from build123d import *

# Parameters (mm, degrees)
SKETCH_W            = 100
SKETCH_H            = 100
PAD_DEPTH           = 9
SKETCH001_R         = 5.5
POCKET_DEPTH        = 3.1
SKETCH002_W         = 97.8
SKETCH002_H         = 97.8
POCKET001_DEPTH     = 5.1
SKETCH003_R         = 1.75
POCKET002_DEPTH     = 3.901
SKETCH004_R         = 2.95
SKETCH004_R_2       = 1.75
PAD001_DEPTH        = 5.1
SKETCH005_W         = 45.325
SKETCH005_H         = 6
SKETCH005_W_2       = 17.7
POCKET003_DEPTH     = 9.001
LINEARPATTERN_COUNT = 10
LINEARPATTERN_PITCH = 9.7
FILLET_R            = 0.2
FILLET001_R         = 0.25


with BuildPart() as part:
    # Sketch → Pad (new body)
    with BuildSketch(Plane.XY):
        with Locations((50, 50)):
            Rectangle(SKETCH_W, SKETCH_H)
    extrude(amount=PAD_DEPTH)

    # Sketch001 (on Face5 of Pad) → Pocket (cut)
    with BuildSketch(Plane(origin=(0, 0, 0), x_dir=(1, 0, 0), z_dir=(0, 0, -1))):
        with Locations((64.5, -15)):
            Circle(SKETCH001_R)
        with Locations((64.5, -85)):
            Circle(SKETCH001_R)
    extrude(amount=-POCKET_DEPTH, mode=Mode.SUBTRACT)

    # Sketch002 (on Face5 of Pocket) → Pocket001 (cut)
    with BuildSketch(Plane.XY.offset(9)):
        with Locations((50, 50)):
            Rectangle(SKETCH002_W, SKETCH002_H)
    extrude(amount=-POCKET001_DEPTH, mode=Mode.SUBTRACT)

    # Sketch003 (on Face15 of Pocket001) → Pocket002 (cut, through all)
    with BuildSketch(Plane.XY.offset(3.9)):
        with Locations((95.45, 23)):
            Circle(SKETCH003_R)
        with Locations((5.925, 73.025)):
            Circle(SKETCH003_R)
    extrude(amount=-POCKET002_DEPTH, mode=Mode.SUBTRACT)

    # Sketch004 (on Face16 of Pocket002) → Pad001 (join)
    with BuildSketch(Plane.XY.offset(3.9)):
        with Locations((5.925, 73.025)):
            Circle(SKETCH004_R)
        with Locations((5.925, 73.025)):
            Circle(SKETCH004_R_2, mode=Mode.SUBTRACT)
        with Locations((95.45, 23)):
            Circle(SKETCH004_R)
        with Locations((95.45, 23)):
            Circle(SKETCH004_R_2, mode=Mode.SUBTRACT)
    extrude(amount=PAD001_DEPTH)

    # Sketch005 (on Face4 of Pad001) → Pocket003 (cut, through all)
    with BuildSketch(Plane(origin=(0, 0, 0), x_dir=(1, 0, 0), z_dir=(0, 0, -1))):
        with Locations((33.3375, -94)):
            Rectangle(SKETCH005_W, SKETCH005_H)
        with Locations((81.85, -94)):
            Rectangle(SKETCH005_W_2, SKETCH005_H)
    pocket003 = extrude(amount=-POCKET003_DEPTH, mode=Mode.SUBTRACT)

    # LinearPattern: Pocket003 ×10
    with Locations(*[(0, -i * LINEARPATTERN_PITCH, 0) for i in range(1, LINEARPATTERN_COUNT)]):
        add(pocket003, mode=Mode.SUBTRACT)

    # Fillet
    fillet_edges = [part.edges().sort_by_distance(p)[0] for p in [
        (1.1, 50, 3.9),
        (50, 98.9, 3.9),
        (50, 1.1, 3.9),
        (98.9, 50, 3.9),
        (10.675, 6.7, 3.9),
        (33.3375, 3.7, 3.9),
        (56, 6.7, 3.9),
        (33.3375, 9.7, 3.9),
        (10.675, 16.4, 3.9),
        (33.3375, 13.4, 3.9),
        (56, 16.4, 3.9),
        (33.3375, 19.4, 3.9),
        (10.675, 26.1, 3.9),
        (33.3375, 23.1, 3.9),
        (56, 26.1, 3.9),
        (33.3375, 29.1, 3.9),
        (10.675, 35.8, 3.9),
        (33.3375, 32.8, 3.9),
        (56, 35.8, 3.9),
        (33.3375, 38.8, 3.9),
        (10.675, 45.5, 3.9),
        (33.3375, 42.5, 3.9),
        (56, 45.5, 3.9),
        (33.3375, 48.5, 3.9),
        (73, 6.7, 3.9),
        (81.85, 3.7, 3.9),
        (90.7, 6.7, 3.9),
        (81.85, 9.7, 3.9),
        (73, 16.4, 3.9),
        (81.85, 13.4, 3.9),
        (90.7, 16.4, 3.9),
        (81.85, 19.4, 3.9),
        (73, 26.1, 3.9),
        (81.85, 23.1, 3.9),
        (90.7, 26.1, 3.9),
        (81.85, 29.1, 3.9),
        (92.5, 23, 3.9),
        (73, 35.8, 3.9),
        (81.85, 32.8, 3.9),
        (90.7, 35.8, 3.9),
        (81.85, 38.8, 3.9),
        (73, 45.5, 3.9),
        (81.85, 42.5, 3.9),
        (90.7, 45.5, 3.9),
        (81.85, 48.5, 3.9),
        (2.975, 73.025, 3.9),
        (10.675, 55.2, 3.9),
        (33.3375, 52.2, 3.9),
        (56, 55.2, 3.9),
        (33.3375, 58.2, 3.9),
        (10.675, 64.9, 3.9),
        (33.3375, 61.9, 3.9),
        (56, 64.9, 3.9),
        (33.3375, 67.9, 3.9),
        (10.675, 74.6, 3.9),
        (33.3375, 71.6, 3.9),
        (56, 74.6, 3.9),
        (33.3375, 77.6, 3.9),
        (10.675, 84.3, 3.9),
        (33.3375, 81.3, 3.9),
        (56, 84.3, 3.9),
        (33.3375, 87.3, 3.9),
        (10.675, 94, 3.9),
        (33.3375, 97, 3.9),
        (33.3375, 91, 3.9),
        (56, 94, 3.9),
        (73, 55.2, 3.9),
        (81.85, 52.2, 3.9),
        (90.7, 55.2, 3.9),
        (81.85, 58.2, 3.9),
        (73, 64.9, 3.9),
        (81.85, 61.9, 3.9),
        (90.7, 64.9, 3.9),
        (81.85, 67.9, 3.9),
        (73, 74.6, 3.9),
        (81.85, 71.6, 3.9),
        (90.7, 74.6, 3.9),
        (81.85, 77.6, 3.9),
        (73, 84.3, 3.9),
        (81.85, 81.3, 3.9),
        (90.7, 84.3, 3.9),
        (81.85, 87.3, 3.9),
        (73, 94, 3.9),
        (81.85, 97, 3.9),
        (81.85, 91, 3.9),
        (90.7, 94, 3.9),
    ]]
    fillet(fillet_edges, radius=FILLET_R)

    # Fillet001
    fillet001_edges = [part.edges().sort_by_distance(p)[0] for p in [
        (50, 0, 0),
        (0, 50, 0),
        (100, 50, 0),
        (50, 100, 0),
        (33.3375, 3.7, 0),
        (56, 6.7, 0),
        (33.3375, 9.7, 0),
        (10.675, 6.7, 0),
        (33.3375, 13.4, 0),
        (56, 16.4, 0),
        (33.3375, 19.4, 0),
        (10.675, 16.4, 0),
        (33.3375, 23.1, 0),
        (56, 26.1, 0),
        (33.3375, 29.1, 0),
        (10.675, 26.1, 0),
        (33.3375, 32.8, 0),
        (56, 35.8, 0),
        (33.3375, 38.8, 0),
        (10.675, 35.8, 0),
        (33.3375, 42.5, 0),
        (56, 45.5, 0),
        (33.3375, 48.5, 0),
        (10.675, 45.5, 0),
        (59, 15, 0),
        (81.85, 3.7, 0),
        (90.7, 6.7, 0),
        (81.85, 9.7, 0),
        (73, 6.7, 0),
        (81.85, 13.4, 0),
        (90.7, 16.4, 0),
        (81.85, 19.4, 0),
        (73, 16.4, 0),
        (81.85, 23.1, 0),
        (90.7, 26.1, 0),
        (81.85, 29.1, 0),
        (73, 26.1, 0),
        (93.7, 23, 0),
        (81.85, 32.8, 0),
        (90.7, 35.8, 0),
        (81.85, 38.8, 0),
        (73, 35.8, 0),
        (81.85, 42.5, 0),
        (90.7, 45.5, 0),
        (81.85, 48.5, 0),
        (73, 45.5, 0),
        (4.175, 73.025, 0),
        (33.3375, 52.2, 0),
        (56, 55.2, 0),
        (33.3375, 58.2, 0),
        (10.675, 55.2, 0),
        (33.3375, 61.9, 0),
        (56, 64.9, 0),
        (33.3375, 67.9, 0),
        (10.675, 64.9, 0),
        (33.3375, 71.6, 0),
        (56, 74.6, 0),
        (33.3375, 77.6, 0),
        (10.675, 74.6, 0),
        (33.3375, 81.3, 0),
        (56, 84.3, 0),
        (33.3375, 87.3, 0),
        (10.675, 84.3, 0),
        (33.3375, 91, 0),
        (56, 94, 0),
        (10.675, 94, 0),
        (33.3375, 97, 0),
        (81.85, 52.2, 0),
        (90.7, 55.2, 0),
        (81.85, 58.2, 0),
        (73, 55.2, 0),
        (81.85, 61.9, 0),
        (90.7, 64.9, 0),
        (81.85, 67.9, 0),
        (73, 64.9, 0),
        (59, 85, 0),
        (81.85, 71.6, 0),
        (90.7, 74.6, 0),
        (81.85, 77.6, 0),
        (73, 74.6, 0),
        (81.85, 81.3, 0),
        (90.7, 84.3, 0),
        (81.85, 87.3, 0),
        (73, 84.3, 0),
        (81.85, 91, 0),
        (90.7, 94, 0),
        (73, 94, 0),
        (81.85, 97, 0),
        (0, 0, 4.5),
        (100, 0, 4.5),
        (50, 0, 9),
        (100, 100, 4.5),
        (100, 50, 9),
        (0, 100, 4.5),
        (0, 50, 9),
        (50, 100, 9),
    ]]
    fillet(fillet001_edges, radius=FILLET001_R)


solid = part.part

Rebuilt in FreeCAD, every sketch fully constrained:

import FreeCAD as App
import Part
import Sketcher
from FreeCAD import Vector


def edges_at(feature, points):
    """Names of the edges that pass closest to the given points."""
    edges = feature.Shape.Edges
    near = lambda p: min(range(len(edges)), key=lambda i: edges[i].distToShape(Part.Vertex(*p))[0])
    return sorted({f"Edge{near(p) + 1}" for p in points})


def add_polygon(sketch, points):
    """Adds a closed chain of lines whose ends are joined by coincident constraints."""
    first, n = sketch.GeometryCount, len(points)
    for a, b in zip(points, points[1:] + points[:1]):
        sketch.addGeometry(Part.LineSegment(App.Vector(*a, 0), App.Vector(*b, 0)), False)
    for i in range(n):
        sketch.addConstraint(Sketcher.Constraint("Coincident", first + i, 2, first + (i + 1) % n, 1))

doc = App.newDocument("Part")
body = doc.addObject("PartDesign::Body", "Body")

sketch1 = doc.addObject("Sketcher::SketchObject", "Sketch")
body.addObject(sketch1)
sketch1.AttachmentSupport = (doc.XY_Plane, [""])
sketch1.MapMode = "FlatFace"
add_polygon(sketch1, [(0, 100), (0, 0), (100, 0), (100, 100)])
sketch1.addConstraint(Sketcher.Constraint("Vertical", 0))
sketch1.addConstraint(Sketcher.Constraint("Horizontal", 1))
sketch1.addConstraint(Sketcher.Constraint("Vertical", 2))
sketch1.addConstraint(Sketcher.Constraint("Horizontal", 3))
sketch1.addConstraint(Sketcher.Constraint("Coincident", 0, 2, -1, 1))
sketch1.addConstraint(Sketcher.Constraint("Equal", 3, 0))
sketch1.addConstraint(Sketcher.Constraint("DistanceX", 1, 1, 1, 2, 100.0))
pad1 = doc.addObject("PartDesign::Pad", "Pad")
body.addObject(pad1)
pad1.Profile = sketch1
pad1.Length = 9

sketch2 = doc.addObject("Sketcher::SketchObject", "Sketch001")
body.addObject(sketch2)
sketch2.AttachmentSupport = (doc.XY_Plane, [""])
sketch2.MapMode = "FlatFace"
sketch2.addGeometry(Part.Circle(Vector(64, 15, 0), Vector(0, 0, 1), 6), False)
sketch2.addGeometry(Part.Circle(Vector(64, 85, 0), Vector(0, 0, 1), 6), False)
sketch2.addConstraint(Sketcher.Constraint("Equal", 0, 1))
sketch2.addConstraint(Sketcher.Constraint("Vertical", 0, 3, 1, 3))
sketch2.addConstraint(Sketcher.Constraint("Diameter", 0, 11.0))
sketch2.addConstraint(Sketcher.Constraint("DistanceY", -1, 1, 0, 3, 15.0))
sketch2.addConstraint(Sketcher.Constraint("DistanceY", -1, 1, 1, 3, 85.0))
sketch2.addConstraint(Sketcher.Constraint("DistanceX", -1, 1, 0, 3, 64.5))
pocket1 = doc.addObject("PartDesign::Pocket", "Pocket")
body.addObject(pocket1)
pocket1.Profile = sketch2
pocket1.Length = 3.1
pocket1.Reversed = True

sketch3 = doc.addObject("Sketcher::SketchObject", "Sketch002")
body.addObject(sketch3)
sketch3.AttachmentSupport = (doc.XY_Plane, [""])
sketch3.MapMode = "FlatFace"
sketch3.AttachmentOffset = App.Placement(Vector(0, 0, 9), App.Rotation())
add_polygon(sketch3, [(1, 99), (1, 1), (99, 1), (99, 99)])
sketch3.addConstraint(Sketcher.Constraint("Vertical", 0))
sketch3.addConstraint(Sketcher.Constraint("Horizontal", 1))
sketch3.addConstraint(Sketcher.Constraint("Vertical", 2))
sketch3.addConstraint(Sketcher.Constraint("Horizontal", 3))
sketch3.addConstraint(Sketcher.Constraint("Equal", 3, 0))
sketch3.addConstraint(Sketcher.Constraint("DistanceX", 1, 1, 1, 2, 97.8))
sketch3.addConstraint(Sketcher.Constraint("DistanceX", -1, 1, 0, 2, 1.1))
sketch3.addConstraint(Sketcher.Constraint("DistanceY", -1, 1, 0, 2, 1.1))
pocket2 = doc.addObject("PartDesign::Pocket", "Pocket001")
body.addObject(pocket2)
pocket2.Profile = sketch3
pocket2.Length = 5.1

sketch4 = doc.addObject("Sketcher::SketchObject", "Sketch003")
body.addObject(sketch4)
sketch4.AttachmentSupport = (doc.XY_Plane, [""])
sketch4.MapMode = "FlatFace"
sketch4.AttachmentOffset = App.Placement(Vector(0, 0, 3.9), App.Rotation())
sketch4.addGeometry(Part.Circle(Vector(95.5, 23, 0), Vector(0, 0, 1), 1.8), False)
sketch4.addGeometry(Part.Circle(Vector(5.9, 73, 0), Vector(0, 0, 1), 1.8), False)
sketch4.addConstraint(Sketcher.Constraint("Equal", 0, 1))
sketch4.addConstraint(Sketcher.Constraint("Diameter", 0, 3.5))
sketch4.addConstraint(Sketcher.Constraint("DistanceY", -1, 1, 0, 3, 23.0))
sketch4.addConstraint(Sketcher.Constraint("DistanceX", -1, 1, 0, 3, 95.45))
sketch4.addConstraint(Sketcher.Constraint("DistanceX", -1, 1, 1, 3, 5.925))
sketch4.addConstraint(Sketcher.Constraint("DistanceY", -1, 1, 1, 3, 73.025))
pocket3 = doc.addObject("PartDesign::Pocket", "Pocket002")
body.addObject(pocket3)
pocket3.Profile = sketch4
pocket3.Type = "ThroughAll"

sketch5 = doc.addObject("Sketcher::SketchObject", "Sketch004")
body.addObject(sketch5)
sketch5.AttachmentSupport = (doc.XY_Plane, [""])
sketch5.MapMode = "FlatFace"
sketch5.AttachmentOffset = App.Placement(Vector(0, 0, 3.9), App.Rotation())
sketch5.addGeometry(Part.Circle(Vector(5.9, 73, 0), Vector(0, 0, 1), 3), False)
sketch5.addGeometry(Part.Circle(Vector(5.9, 73, 0), Vector(0, 0, 1), 1.8), False)
sketch5.addGeometry(Part.Circle(Vector(95.5, 23, 0), Vector(0, 0, 1), 3), False)
sketch5.addGeometry(Part.Circle(Vector(95.5, 23, 0), Vector(0, 0, 1), 1.8), False)
sketch5.addConstraint(Sketcher.Constraint("Coincident", 1, 3, 0, 3))
sketch5.addConstraint(Sketcher.Constraint("Coincident", 3, 3, 2, 3))
sketch5.addConstraint(Sketcher.Constraint("Equal", 0, 2))
sketch5.addConstraint(Sketcher.Constraint("Equal", 1, 3))
sketch5.addConstraint(Sketcher.Constraint("Diameter", 0, 5.9))
sketch5.addConstraint(Sketcher.Constraint("Diameter", 1, 3.5))
sketch5.addConstraint(Sketcher.Constraint("DistanceY", -1, 1, 2, 3, 23.0))
sketch5.addConstraint(Sketcher.Constraint("DistanceX", -1, 1, 2, 3, 95.45))
sketch5.addConstraint(Sketcher.Constraint("DistanceX", -1, 1, 0, 3, 5.925))
sketch5.addConstraint(Sketcher.Constraint("DistanceY", -1, 1, 0, 3, 73.025))
pad2 = doc.addObject("PartDesign::Pad", "Pad001")
body.addObject(pad2)
pad2.Profile = sketch5
pad2.Length = 5.1

sketch6 = doc.addObject("Sketcher::SketchObject", "Sketch005")
body.addObject(sketch6)
sketch6.AttachmentSupport = (doc.XY_Plane, [""])
sketch6.MapMode = "FlatFace"
add_polygon(sketch6, [(11, 91), (11, 97), (56, 97), (56, 91)])
add_polygon(sketch6, [(73, 91), (73, 97), (91, 97), (91, 91)])
sketch6.addConstraint(Sketcher.Constraint("Vertical", 0))
sketch6.addConstraint(Sketcher.Constraint("Horizontal", 1))
sketch6.addConstraint(Sketcher.Constraint("Vertical", 2))
sketch6.addConstraint(Sketcher.Constraint("Horizontal", 3))
sketch6.addConstraint(Sketcher.Constraint("Vertical", 4))
sketch6.addConstraint(Sketcher.Constraint("Horizontal", 5))
sketch6.addConstraint(Sketcher.Constraint("Vertical", 6))
sketch6.addConstraint(Sketcher.Constraint("Horizontal", 7))
sketch6.addConstraint(Sketcher.Constraint("Horizontal", 1, 2, 4, 2))
sketch6.addConstraint(Sketcher.Constraint("Horizontal", 3, 2, 6, 2))
sketch6.addConstraint(Sketcher.Constraint("DistanceY", 0, 1, 0, 2, 6.0))
sketch6.addConstraint(Sketcher.Constraint("DistanceX", 5, 1, 5, 2, 17.7))
sketch6.addConstraint(Sketcher.Constraint("DistanceY", -1, 1, 0, 2, 97.0))
sketch6.addConstraint(Sketcher.Constraint("DistanceX", -1, 1, 1, 2, 56.0))
sketch6.addConstraint(Sketcher.Constraint("DistanceX", -1, 1, 4, 2, 73.0))
sketch6.addConstraint(Sketcher.Constraint("DistanceX", 1, 1, 1, 2, 45.325))
pocket4 = doc.addObject("PartDesign::Pocket", "Pocket003")
body.addObject(pocket4)
pocket4.Profile = sketch6
pocket4.Type = "ThroughAll"
pocket4.Reversed = True
doc.recompute()

linearpattern = doc.addObject("PartDesign::LinearPattern", "LinearPattern")
body.addObject(linearpattern)
linearpattern.Originals = [pocket4]
linearpattern.Direction = (doc.Y_Axis, [""])
linearpattern.Mode = "offset"
linearpattern.Offset = 9.7
linearpattern.Occurrences = 10
linearpattern.Reversed = True
body.Tip = linearpattern
doc.recompute()

fillet = doc.addObject("PartDesign::Fillet", "Fillet")
body.addObject(fillet)
fillet.Base = (linearpattern, edges_at(linearpattern, [
    (1.1, 50, 3.9),
    (50, 98.9, 3.9),
    (50, 1.1, 3.9),
    (98.9, 50, 3.9),
    (10.675, 6.7, 3.9),
    (33.337, 3.7, 3.9),
    (56, 6.7, 3.9),
    (33.337, 9.7, 3.9),
    (10.675, 16.4, 3.9),
    (33.337, 13.4, 3.9),
    (56, 16.4, 3.9),
    (33.337, 19.4, 3.9),
    (10.675, 26.1, 3.9),
    (33.337, 23.1, 3.9),
    (56, 26.1, 3.9),
    (33.337, 29.1, 3.9),
    (10.675, 35.8, 3.9),
    (33.337, 32.8, 3.9),
    (56, 35.8, 3.9),
    (33.337, 38.8, 3.9),
    (10.675, 45.5, 3.9),
    (33.337, 42.5, 3.9),
    (56, 45.5, 3.9),
    (33.337, 48.5, 3.9),
    (73, 6.7, 3.9),
    (81.85, 3.7, 3.9),
    (90.7, 6.7, 3.9),
    (81.85, 9.7, 3.9),
    (73, 16.4, 3.9),
    (81.85, 13.4, 3.9),
    (90.7, 16.4, 3.9),
    (81.85, 19.4, 3.9),
    (73, 26.1, 3.9),
    (81.85, 23.1, 3.9),
    (90.7, 26.1, 3.9),
    (81.85, 29.1, 3.9),
    (92.5, 23, 3.9),
    (73, 35.8, 3.9),
    (81.85, 32.8, 3.9),
    (90.7, 35.8, 3.9),
    (81.85, 38.8, 3.9),
    (73, 45.5, 3.9),
    (81.85, 42.5, 3.9),
    (90.7, 45.5, 3.9),
    (81.85, 48.5, 3.9),
    (2.975, 73.025, 3.9),
    (10.675, 55.2, 3.9),
    (33.337, 52.2, 3.9),
    (56, 55.2, 3.9),
    (33.337, 58.2, 3.9),
    (10.675, 64.9, 3.9),
    (33.337, 61.9, 3.9),
    (56, 64.9, 3.9),
    (33.337, 67.9, 3.9),
    (10.675, 74.6, 3.9),
    (33.337, 71.6, 3.9),
    (56, 74.6, 3.9),
    (33.337, 77.6, 3.9),
    (10.675, 84.3, 3.9),
    (33.337, 81.3, 3.9),
    (56, 84.3, 3.9),
    (33.337, 87.3, 3.9),
    (10.675, 94, 3.9),
    (33.337, 97, 3.9),
    (33.337, 91, 3.9),
    (56, 94, 3.9),
    (73, 55.2, 3.9),
    (81.85, 52.2, 3.9),
    (90.7, 55.2, 3.9),
    (81.85, 58.2, 3.9),
    (73, 64.9, 3.9),
    (81.85, 61.9, 3.9),
    (90.7, 64.9, 3.9),
    (81.85, 67.9, 3.9),
    (73, 74.6, 3.9),
    (81.85, 71.6, 3.9),
    (90.7, 74.6, 3.9),
    (81.85, 77.6, 3.9),
    (73, 84.3, 3.9),
    (81.85, 81.3, 3.9),
    (90.7, 84.3, 3.9),
    (81.85, 87.3, 3.9),
    (73, 94, 3.9),
    (81.85, 97, 3.9),
    (81.85, 91, 3.9),
    (90.7, 94, 3.9),
]))
fillet.Radius = 0.2
doc.recompute()

fillet2 = doc.addObject("PartDesign::Fillet", "Fillet001")
body.addObject(fillet2)
fillet2.Base = (fillet, edges_at(fillet, [
    (50, 0, 0),
    (0, 50, 0),
    (100, 50, 0),
    (50, 100, 0),
    (33.337, 3.7, 0),
    (56, 6.7, 0),
    (33.337, 9.7, 0),
    (10.675, 6.7, 0),
    (33.337, 13.4, 0),
    (56, 16.4, 0),
    (33.337, 19.4, 0),
    (10.675, 16.4, 0),
    (33.337, 23.1, 0),
    (56, 26.1, 0),
    (33.337, 29.1, 0),
    (10.675, 26.1, 0),
    (33.337, 32.8, 0),
    (56, 35.8, 0),
    (33.337, 38.8, 0),
    (10.675, 35.8, 0),
    (33.337, 42.5, 0),
    (56, 45.5, 0),
    (33.337, 48.5, 0),
    (10.675, 45.5, 0),
    (59, 15, 0),
    (81.85, 3.7, 0),
    (90.7, 6.7, 0),
    (81.85, 9.7, 0),
    (73, 6.7, 0),
    (81.85, 13.4, 0),
    (90.7, 16.4, 0),
    (81.85, 19.4, 0),
    (73, 16.4, 0),
    (81.85, 23.1, 0),
    (90.7, 26.1, 0),
    (81.85, 29.1, 0),
    (73, 26.1, 0),
    (93.7, 23, 0),
    (81.85, 32.8, 0),
    (90.7, 35.8, 0),
    (81.85, 38.8, 0),
    (73, 35.8, 0),
    (81.85, 42.5, 0),
    (90.7, 45.5, 0),
    (81.85, 48.5, 0),
    (73, 45.5, 0),
    (4.175, 73.025, 0),
    (33.337, 52.2, 0),
    (56, 55.2, 0),
    (33.337, 58.2, 0),
    (10.675, 55.2, 0),
    (33.337, 61.9, 0),
    (56, 64.9, 0),
    (33.337, 67.9, 0),
    (10.675, 64.9, 0),
    (33.337, 71.6, 0),
    (56, 74.6, 0),
    (33.337, 77.6, 0),
    (10.675, 74.6, 0),
    (33.337, 81.3, 0),
    (56, 84.3, 0),
    (33.337, 87.3, 0),
    (10.675, 84.3, 0),
    (33.337, 91, 0),
    (56, 94, 0),
    (10.675, 94, 0),
    (33.337, 97, 0),
    (81.85, 52.2, 0),
    (90.7, 55.2, 0),
    (81.85, 58.2, 0),
    (73, 55.2, 0),
    (81.85, 61.9, 0),
    (90.7, 64.9, 0),
    (81.85, 67.9, 0),
    (73, 64.9, 0),
    (59, 85, 0),
    (81.85, 71.6, 0),
    (90.7, 74.6, 0),
    (81.85, 77.6, 0),
    (73, 74.6, 0),
    (81.85, 81.3, 0),
    (90.7, 84.3, 0),
    (81.85, 87.3, 0),
    (73, 84.3, 0),
    (81.85, 91, 0),
    (90.7, 94, 0),
    (73, 94, 0),
    (81.85, 97, 0),
    (0, 0, 4.5),
    (100, 0, 4.5),
    (50, 0, 9),
    (100, 100, 4.5),
    (100, 50, 9),
    (0, 100, 4.5),
    (0, 50, 9),
    (50, 100, 9),
]))
fillet2.Radius = 0.25

doc.recompute()
